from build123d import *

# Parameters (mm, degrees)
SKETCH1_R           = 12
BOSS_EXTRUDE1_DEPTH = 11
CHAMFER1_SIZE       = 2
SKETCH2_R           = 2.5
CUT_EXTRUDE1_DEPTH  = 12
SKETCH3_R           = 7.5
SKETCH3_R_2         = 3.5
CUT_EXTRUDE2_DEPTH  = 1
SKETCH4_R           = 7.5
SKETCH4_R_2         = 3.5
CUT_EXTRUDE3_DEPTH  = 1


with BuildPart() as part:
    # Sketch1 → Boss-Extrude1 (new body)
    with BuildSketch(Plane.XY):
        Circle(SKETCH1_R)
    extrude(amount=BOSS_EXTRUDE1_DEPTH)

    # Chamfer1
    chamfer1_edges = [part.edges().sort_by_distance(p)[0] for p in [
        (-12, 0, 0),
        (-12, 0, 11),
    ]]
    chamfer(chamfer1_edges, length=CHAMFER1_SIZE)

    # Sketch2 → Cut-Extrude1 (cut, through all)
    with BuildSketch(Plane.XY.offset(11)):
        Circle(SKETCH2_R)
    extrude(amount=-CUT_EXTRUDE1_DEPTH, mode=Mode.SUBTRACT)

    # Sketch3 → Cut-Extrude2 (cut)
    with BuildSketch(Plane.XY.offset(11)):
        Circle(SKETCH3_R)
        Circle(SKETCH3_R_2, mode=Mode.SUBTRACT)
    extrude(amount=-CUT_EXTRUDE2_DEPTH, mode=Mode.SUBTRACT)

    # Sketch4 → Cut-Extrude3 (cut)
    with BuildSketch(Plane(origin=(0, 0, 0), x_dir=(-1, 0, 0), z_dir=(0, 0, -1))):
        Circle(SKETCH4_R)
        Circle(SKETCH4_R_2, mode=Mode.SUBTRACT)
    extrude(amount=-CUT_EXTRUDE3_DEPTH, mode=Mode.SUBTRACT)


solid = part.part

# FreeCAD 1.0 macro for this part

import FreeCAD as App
import Part
import Sketcher

V = App.Vector
Q = App.Units.Quantity


def edges_at(feature, points):
    """Names of the edges that pass closest to the given points."""
    edges = feature.Shape.Edges
    near = lambda p: min(range(len(edges)), key=lambda i: edges[i].distToShape(Part.Vertex(*p))[0])
    return sorted({f"Edge{near(p) + 1}" for p in points})

doc = App.newDocument("Part")
body = doc.addObject("PartDesign::Body", "Body")

# Sketch on XY plane
sketch1 = body.newObject("Sketcher::SketchObject", "Sketch")
sketch1.AttachmentSupport = (doc.getObject("XY_Plane"), [""])
sketch1.MapMode = "FlatFace"
sketch1.addGeometry(Part.Circle(V(0, 0, 0), V(0, 0, 1), 12), False)
sketch1.addConstraint(Sketcher.Constraint("Coincident", 0, 3, -1, 1))
sketch1.addConstraint(Sketcher.Constraint("Diameter", 0, Q("24 mm")))
pad1 = body.newObject("PartDesign::Pad", "Pad")
pad1.Profile = sketch1
pad1.Length = 11
doc.recompute()

chamfer = body.newObject("PartDesign::Chamfer", "Chamfer")
chamfer.Base = (pad1, edges_at(pad1, [(-12, 0, 0), (-12, 0, 11)]))
chamfer.Size = 2

# Sketch on XY plane
sketch2 = body.newObject("Sketcher::SketchObject", "Sketch001")
sketch2.AttachmentSupport = (doc.getObject("XY_Plane"), [""])
sketch2.MapMode = "FlatFace"
sketch2.AttachmentOffset = App.Placement(V(0, 0, 11), App.Rotation())
sketch2.addGeometry(Part.Circle(V(0, 0, 0), V(0, 0, 1), 2.5), False)
sketch2.addConstraint(Sketcher.Constraint("Coincident", 0, 3, -1, 1))
sketch2.addConstraint(Sketcher.Constraint("Diameter", 0, Q("5 mm")))
pocket1 = body.newObject("PartDesign::Pocket", "Pocket")
pocket1.Profile = sketch2
pocket1.Type = "ThroughAll"

# Sketch on XY plane
sketch3 = body.newObject("Sketcher::SketchObject", "Sketch002")
sketch3.AttachmentSupport = (doc.getObject("XY_Plane"), [""])
sketch3.MapMode = "FlatFace"
sketch3.AttachmentOffset = App.Placement(V(0, 0, 11), App.Rotation())
sketch3.addGeometry(Part.Circle(V(0, 0, 0), V(0, 0, 1), 7.5), False)
sketch3.addGeometry(Part.Circle(V(0, 0, 0), V(0, 0, 1), 3.5), False)
sketch3.addConstraint(Sketcher.Constraint("Coincident", 0, 3, -1, 1))
sketch3.addConstraint(Sketcher.Constraint("Coincident", 1, 3, -1, 1))
sketch3.addConstraint(Sketcher.Constraint("Diameter", 0, Q("15 mm")))
sketch3.addConstraint(Sketcher.Constraint("Diameter", 1, Q("7 mm")))
pocket2 = body.newObject("PartDesign::Pocket", "Pocket001")
pocket2.Profile = sketch3
pocket2.Length = 1

# Sketch on XY plane
sketch4 = body.newObject("Sketcher::SketchObject", "Sketch003")
sketch4.AttachmentSupport = (doc.getObject("XY_Plane"), [""])
sketch4.MapMode = "FlatFace"
sketch4.addGeometry(Part.Circle(V(0, 0, 0), V(0, 0, 1), 7.5), False)
sketch4.addGeometry(Part.Circle(V(0, 0, 0), V(0, 0, 1), 3.5), False)
sketch4.addConstraint(Sketcher.Constraint("Coincident", 0, 3, -1, 1))
sketch4.addConstraint(Sketcher.Constraint("Coincident", 1, 3, -1, 1))
sketch4.addConstraint(Sketcher.Constraint("Diameter", 0, Q("15 mm")))
sketch4.addConstraint(Sketcher.Constraint("Diameter", 1, Q("7 mm")))
pocket3 = body.newObject("PartDesign::Pocket", "Pocket002")
pocket3.Profile = sketch4
pocket3.Length = 1
pocket3.Reversed = True

doc.recompute()
